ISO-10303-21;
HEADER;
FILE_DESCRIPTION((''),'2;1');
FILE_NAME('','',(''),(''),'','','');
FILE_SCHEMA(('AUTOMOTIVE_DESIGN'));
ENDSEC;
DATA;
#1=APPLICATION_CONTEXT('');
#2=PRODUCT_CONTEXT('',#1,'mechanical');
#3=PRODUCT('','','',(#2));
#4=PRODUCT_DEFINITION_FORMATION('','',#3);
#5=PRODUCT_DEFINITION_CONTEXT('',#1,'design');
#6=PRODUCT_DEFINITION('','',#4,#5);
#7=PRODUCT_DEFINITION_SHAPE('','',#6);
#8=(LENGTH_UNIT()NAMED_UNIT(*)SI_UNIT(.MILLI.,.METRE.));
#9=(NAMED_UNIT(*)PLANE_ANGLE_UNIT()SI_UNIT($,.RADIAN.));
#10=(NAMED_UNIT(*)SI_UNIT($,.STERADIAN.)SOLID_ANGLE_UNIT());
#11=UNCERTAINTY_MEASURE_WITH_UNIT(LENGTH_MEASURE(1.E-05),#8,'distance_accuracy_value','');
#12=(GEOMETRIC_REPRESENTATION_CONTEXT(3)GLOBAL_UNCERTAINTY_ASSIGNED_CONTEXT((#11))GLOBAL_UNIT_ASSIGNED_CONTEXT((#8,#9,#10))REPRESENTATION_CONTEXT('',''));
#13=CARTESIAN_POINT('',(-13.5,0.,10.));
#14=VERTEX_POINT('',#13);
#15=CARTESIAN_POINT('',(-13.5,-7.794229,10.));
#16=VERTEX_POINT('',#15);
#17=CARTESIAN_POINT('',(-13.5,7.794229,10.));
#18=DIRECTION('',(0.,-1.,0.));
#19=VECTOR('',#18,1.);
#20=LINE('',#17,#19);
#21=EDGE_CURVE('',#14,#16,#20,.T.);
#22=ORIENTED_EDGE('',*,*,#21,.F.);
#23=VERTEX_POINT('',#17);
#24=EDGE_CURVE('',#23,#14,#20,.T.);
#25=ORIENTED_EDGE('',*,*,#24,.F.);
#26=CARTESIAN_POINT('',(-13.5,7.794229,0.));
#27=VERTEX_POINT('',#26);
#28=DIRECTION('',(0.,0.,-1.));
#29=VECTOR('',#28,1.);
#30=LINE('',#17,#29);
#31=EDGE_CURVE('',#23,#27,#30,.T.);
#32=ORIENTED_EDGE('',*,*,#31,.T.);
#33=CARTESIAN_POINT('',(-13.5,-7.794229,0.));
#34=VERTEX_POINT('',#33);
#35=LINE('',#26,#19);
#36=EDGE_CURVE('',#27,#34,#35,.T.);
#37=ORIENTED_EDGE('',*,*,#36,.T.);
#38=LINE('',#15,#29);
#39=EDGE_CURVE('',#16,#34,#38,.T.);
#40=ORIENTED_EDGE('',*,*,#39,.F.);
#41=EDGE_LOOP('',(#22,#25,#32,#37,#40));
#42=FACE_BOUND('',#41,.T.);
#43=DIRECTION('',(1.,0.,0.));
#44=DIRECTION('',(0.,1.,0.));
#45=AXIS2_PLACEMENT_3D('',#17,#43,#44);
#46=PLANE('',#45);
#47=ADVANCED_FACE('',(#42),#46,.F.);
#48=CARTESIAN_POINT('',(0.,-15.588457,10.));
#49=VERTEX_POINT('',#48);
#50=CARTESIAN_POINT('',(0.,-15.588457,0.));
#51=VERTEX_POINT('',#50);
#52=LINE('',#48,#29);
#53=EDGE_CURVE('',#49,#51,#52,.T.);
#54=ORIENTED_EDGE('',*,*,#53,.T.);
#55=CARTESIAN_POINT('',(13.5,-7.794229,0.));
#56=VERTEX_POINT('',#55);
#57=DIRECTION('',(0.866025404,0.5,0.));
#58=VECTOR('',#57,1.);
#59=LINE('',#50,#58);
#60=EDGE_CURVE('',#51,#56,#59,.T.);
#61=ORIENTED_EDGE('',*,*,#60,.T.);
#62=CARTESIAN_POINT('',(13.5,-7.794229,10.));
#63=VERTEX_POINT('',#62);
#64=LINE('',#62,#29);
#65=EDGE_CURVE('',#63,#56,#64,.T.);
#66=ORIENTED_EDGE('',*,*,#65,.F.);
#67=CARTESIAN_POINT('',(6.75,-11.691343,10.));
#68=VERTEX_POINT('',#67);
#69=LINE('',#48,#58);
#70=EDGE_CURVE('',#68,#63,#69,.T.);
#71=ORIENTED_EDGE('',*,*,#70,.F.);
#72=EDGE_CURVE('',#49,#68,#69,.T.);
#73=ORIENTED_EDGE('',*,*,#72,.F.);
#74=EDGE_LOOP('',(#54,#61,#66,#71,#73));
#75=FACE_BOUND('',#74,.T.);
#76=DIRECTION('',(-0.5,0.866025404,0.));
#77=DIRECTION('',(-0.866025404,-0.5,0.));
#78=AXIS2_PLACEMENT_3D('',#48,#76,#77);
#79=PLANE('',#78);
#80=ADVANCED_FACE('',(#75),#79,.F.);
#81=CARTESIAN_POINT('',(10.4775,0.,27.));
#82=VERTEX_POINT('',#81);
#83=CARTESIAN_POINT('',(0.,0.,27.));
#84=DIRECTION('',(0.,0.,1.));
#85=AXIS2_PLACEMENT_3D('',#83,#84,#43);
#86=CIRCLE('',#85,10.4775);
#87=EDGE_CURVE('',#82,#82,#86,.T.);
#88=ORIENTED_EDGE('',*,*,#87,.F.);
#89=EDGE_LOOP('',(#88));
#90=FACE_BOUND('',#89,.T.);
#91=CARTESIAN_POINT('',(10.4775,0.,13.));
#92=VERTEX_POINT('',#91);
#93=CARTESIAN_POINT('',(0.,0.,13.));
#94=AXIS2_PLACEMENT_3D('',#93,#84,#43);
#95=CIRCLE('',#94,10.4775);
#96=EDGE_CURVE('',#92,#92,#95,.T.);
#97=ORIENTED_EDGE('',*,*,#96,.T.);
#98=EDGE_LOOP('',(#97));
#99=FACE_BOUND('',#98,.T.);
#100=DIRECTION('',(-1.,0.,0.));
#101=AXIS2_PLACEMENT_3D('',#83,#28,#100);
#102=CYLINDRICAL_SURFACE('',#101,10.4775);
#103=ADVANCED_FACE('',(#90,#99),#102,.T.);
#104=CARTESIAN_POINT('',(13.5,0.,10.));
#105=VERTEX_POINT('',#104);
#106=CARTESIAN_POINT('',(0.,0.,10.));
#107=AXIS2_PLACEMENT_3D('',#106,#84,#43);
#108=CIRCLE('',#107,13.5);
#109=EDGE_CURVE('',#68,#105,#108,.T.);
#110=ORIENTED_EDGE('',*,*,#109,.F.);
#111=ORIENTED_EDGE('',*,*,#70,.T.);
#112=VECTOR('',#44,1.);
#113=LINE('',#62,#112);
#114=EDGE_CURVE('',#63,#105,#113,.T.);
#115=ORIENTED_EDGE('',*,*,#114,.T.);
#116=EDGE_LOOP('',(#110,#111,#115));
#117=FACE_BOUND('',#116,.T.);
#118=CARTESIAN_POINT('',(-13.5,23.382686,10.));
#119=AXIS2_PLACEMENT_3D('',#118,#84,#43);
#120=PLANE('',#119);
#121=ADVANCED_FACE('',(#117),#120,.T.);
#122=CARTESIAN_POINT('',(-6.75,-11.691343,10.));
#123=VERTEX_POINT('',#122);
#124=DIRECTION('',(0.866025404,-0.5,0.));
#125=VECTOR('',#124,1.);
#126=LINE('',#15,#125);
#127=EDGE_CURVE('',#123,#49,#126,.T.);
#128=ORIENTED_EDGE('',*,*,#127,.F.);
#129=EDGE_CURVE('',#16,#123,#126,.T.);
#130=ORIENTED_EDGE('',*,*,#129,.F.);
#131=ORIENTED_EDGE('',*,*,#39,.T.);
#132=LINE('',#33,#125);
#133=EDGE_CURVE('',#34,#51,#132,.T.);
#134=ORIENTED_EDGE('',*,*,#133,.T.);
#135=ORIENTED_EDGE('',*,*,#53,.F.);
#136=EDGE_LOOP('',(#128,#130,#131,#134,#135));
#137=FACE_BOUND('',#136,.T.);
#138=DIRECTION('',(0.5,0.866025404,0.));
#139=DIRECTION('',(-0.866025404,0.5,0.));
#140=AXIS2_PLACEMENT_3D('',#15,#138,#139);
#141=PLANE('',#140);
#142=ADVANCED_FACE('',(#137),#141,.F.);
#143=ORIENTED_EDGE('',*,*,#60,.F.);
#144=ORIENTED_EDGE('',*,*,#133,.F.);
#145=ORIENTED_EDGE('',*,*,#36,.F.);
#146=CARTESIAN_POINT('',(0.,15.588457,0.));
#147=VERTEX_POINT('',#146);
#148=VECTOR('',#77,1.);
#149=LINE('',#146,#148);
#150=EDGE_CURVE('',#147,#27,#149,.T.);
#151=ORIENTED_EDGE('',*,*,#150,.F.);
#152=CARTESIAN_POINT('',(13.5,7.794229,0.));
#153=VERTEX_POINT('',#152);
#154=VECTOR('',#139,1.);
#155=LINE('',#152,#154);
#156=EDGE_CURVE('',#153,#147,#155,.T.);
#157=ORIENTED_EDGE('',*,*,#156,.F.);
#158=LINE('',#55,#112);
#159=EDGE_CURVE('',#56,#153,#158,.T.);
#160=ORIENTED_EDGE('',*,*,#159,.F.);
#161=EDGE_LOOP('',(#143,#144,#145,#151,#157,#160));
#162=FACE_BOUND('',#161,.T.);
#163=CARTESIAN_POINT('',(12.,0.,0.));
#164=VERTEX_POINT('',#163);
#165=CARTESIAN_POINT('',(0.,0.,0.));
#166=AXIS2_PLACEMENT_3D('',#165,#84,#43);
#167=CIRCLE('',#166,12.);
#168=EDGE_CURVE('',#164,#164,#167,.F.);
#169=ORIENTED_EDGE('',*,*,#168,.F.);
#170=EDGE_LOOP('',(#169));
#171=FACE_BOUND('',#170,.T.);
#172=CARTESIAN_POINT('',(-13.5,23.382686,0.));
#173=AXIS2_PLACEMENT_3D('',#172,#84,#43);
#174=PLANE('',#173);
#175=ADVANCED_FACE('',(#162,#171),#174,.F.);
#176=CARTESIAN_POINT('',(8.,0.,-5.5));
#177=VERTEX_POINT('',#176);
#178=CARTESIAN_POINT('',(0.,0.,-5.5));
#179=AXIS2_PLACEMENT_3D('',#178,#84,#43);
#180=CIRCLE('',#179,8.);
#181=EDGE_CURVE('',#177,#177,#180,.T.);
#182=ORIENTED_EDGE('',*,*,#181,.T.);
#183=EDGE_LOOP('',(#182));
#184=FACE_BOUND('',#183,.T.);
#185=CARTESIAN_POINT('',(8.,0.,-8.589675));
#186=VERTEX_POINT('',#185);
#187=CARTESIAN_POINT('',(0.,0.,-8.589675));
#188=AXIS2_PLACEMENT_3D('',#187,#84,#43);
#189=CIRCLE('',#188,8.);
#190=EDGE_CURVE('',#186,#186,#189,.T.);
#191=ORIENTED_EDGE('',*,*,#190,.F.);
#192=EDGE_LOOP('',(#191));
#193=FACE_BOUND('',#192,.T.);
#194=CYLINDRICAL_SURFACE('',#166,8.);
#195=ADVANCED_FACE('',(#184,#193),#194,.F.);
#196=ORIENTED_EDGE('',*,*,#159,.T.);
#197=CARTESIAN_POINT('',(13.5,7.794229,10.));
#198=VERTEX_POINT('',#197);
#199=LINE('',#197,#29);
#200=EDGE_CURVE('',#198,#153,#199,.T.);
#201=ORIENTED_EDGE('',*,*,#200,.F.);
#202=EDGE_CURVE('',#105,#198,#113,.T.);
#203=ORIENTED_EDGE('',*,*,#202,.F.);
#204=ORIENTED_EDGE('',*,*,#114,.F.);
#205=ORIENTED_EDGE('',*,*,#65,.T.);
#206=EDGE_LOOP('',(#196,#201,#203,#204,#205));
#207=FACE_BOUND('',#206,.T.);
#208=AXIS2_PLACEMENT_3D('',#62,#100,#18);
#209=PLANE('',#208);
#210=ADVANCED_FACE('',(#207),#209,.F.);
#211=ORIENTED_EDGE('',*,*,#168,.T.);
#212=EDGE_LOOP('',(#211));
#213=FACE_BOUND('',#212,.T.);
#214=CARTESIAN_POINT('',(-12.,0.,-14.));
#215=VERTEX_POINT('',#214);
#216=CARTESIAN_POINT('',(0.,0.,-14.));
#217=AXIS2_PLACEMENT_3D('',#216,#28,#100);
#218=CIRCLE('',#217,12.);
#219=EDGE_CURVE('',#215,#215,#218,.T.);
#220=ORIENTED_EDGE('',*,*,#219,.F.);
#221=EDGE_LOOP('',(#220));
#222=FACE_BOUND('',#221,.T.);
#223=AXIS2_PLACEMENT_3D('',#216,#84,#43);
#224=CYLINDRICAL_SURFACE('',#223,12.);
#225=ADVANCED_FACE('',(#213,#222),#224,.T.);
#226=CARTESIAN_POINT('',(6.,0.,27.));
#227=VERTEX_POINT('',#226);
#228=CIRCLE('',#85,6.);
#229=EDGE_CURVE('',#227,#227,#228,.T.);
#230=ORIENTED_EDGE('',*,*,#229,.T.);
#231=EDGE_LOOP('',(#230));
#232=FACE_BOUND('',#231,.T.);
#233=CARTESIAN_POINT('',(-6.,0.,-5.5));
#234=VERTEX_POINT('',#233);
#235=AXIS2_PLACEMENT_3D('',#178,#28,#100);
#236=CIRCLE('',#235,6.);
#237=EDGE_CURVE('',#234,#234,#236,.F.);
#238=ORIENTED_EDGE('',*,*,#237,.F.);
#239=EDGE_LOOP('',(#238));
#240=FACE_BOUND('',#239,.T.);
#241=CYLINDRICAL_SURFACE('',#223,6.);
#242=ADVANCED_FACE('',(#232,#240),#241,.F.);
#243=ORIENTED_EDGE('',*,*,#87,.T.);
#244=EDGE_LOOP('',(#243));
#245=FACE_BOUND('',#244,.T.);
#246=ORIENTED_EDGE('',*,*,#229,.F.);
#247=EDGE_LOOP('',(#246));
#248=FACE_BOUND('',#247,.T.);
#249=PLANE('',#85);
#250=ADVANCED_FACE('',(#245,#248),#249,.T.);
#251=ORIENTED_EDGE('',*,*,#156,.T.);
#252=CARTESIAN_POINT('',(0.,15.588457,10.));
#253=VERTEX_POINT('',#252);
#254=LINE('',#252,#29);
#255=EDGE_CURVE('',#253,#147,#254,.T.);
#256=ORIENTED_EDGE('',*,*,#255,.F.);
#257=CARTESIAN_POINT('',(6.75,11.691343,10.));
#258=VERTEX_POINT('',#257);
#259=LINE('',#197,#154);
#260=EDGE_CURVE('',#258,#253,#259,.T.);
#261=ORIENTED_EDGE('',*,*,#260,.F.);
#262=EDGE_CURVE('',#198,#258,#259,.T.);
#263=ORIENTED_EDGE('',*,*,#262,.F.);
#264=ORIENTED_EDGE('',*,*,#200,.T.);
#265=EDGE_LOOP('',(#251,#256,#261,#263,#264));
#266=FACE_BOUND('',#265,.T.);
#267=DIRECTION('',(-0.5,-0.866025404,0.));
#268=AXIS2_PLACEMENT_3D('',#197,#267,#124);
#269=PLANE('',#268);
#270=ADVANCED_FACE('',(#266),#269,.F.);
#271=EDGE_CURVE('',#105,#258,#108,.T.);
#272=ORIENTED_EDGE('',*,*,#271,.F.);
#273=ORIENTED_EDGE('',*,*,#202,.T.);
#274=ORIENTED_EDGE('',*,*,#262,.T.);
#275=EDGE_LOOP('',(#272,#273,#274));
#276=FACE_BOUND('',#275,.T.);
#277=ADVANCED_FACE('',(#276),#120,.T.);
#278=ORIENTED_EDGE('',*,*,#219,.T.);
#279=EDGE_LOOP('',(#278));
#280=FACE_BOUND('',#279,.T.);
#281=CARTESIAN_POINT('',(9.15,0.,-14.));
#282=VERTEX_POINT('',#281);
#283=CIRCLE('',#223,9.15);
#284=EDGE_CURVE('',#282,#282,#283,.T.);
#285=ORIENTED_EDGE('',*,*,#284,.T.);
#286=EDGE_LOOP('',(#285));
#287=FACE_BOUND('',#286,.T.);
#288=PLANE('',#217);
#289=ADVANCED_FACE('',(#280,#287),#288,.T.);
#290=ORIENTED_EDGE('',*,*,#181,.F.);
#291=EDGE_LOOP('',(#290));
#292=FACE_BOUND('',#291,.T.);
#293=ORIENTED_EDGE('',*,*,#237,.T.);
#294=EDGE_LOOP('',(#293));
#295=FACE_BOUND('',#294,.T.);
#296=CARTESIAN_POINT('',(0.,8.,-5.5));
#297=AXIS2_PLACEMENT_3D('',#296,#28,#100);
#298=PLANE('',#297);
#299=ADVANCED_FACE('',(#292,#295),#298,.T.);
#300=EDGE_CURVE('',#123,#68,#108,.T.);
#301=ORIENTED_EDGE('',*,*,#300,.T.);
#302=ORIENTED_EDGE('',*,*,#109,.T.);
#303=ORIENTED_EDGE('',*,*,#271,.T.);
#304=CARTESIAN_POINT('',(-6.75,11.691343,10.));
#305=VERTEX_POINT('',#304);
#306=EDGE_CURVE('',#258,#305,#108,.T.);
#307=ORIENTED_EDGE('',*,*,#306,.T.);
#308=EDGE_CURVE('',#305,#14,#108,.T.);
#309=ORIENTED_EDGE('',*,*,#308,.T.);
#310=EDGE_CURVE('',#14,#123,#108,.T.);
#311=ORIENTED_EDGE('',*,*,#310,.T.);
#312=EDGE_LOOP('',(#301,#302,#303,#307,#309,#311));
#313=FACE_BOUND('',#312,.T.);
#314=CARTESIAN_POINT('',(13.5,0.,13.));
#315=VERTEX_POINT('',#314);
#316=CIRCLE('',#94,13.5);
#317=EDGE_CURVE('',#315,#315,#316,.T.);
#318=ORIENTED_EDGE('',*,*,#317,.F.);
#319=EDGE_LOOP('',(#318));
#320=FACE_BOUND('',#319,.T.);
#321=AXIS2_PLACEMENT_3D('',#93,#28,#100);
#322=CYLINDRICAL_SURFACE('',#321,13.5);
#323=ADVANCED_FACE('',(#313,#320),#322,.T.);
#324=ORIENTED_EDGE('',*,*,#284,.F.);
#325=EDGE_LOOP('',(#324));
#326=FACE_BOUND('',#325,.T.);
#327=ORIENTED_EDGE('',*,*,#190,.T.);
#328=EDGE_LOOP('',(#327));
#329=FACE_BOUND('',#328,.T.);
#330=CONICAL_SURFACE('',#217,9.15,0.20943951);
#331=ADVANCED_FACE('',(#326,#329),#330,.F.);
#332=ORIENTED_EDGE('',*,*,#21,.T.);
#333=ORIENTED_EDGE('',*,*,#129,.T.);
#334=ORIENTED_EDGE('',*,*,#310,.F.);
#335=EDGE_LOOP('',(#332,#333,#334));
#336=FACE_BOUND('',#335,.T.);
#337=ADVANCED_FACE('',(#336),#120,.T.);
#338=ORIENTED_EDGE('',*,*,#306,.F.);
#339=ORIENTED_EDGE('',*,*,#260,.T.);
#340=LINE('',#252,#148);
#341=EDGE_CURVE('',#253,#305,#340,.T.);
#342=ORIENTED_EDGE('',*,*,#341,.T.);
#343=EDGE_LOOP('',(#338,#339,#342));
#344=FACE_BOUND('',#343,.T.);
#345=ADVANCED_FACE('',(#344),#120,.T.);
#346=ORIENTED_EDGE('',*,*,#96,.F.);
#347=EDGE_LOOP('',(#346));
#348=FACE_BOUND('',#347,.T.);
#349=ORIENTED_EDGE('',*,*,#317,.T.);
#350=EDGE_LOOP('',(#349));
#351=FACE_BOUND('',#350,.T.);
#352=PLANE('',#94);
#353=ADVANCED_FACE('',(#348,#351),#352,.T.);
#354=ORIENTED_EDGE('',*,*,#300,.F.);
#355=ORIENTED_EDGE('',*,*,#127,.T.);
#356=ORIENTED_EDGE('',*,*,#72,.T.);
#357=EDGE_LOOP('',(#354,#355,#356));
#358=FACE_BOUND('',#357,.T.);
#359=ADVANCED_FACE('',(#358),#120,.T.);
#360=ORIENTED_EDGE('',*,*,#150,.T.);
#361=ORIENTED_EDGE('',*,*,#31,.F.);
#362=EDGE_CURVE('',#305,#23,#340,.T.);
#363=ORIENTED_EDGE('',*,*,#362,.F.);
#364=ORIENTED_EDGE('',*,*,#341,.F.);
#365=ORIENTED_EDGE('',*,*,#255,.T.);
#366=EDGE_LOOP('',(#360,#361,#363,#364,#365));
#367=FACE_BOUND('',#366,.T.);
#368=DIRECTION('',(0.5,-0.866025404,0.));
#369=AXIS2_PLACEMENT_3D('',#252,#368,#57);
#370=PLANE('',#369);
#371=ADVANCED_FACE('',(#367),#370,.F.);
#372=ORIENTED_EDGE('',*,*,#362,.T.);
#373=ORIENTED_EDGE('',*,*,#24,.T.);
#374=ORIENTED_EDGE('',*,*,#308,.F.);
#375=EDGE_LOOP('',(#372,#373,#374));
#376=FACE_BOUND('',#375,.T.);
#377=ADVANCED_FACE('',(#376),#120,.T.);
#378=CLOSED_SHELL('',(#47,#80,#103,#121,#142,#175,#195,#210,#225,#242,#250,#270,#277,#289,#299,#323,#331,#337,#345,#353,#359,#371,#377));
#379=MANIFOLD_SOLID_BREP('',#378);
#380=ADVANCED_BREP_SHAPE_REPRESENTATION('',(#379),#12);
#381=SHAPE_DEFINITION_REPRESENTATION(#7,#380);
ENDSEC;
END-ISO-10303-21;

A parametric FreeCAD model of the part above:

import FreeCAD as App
import Part
import Sketcher
from FreeCAD import Vector
Q = App.Units.Quantity

doc = App.newDocument("Part")
params = doc.addObject("Spreadsheet::Sheet", "Params")
for row, (alias, value) in enumerate([
    ("pad1_length", "10 mm"),
    ("sketch2_diameter", "27 mm"),
    ("pad2_length", "3 mm"),
    ("pad3_length", "14 mm"),
    ("sketch4_diameter", "24 mm"),
    ("pad4_length", "14 mm"),
    ("sketch5_diameter", "12 mm"),
    ("sketch6_width", "8 mm"),
    ("sketch6_height", "8.5 mm"),
    ("sketch6_width2", "9.15 mm"),
    ("groove_angle", "360 deg"),
], start=1):
    params.set(f"A{row}", alias)
    params.set(f"B{row}", "=" + value)
    params.setAlias(f"B{row}", alias)

body = doc.addObject("PartDesign::Body", "Body")

sketch1 = doc.addObject("Sketcher::SketchObject", "Sketch")
body.addObject(sketch1)
sketch1.AttachmentSupport = (doc.XY_Plane, [""])
sketch1.MapMode = "FlatFace"
sketch1.addGeometry([
    Part.LineSegment(Vector(0, 15.588457, 0), Vector(-13.5, 7.794229, 0)),
    Part.LineSegment(Vector(-13.5, 7.794229, 0), Vector(-13.5, -7.794229, 0)),
    Part.LineSegment(Vector(-13.5, -7.794229, 0), Vector(0, -15.588457, 0)),
    Part.LineSegment(Vector(0, -15.588457, 0), Vector(13.5, -7.794229, 0)),
    Part.LineSegment(Vector(13.5, -7.794229, 0), Vector(13.5, 7.794229, 0)),
    Part.LineSegment(Vector(13.5, 7.794229, 0), Vector(0, 15.588457, 0)),
], False)
sketch1.addConstraint([
    Sketcher.Constraint("Coincident", 0, 2, 1, 1),
    Sketcher.Constraint("Coincident", 1, 2, 2, 1),
    Sketcher.Constraint("Coincident", 2, 2, 3, 1),
    Sketcher.Constraint("Coincident", 3, 2, 4, 1),
    Sketcher.Constraint("Coincident", 4, 2, 5, 1),
    Sketcher.Constraint("Coincident", 5, 2, 0, 1),
    Sketcher.Constraint("Vertical", 1),
    Sketcher.Constraint("Vertical", 4),
    Sketcher.Constraint("Symmetric", 0, 2, 3, 2, -1, 1),
    Sketcher.Constraint("Symmetric", 2, 2, 5, 2, -1, 1),
    Sketcher.Constraint("PointOnObject", 2, 2, -2),
    Sketcher.Constraint("Parallel", 2, 5),
    Sketcher.Constraint("Horizontal", 1, 2, 3, 2),
    Sketcher.Constraint("Angle", 0, Q("-150 deg")),
    Sketcher.Constraint("DistanceX", 1, 2, 3, 2, 27.0),
    Sketcher.Constraint("DistanceY", 1, 2, 1, 1, 15.588457),
])
pad1 = doc.addObject("PartDesign::Pad", "Pad")
body.addObject(pad1)
pad1.Profile = sketch1
pad1.setExpression("Length", "Params.pad1_length")

sketch2 = doc.addObject("Sketcher::SketchObject", "Sketch001")
body.addObject(sketch2)
sketch2.AttachmentSupport = (doc.XY_Plane, [""])
sketch2.MapMode = "FlatFace"
sketch2.AttachmentOffset = App.Placement(Vector(0, 0, 10), App.Rotation())
sketch2.addGeometry(Part.Circle(Vector(0, 0, 0), Vector(0, 0, 1), 13.5), False)
sketch2.addConstraint([
    Sketcher.Constraint("Coincident", 0, 3, -1, 1),
    Sketcher.Constraint("Diameter", 0, 27.0),
])
sketch2.setExpression("Constraints[1]", "Params.sketch2_diameter")
pad2 = doc.addObject("PartDesign::Pad", "Pad001")
body.addObject(pad2)
pad2.Profile = sketch2
pad2.setExpression("Length", "Params.pad2_length")

sketch3 = doc.addObject("Sketcher::SketchObject", "Sketch002")
body.addObject(sketch3)
sketch3.AttachmentSupport = (doc.XY_Plane, [""])
sketch3.MapMode = "FlatFace"
sketch3.AttachmentOffset = App.Placement(Vector(0, 0, 13), App.Rotation())
sketch3.addGeometry(Part.Circle(Vector(0, 0, 0), Vector(0, 0, 1), 10.4775), False)
sketch3.addConstraint([
    Sketcher.Constraint("Coincident", 0, 3, -1, 1),
    Sketcher.Constraint("Diameter", 0, 20.955),
])
pad3 = doc.addObject("PartDesign::Pad", "Pad002")
body.addObject(pad3)
pad3.Profile = sketch3
pad3.setExpression("Length", "Params.pad3_length")

sketch4 = doc.addObject("Sketcher::SketchObject", "Sketch003")
body.addObject(sketch4)
sketch4.AttachmentSupport = (doc.XY_Plane, [""])
sketch4.MapMode = "FlatFace"
sketch4.addGeometry(Part.Circle(Vector(0, 0, 0), Vector(0, 0, 1), 12), False)
sketch4.addConstraint([
    Sketcher.Constraint("Coincident", 0, 3, -1, 1),
    Sketcher.Constraint("Diameter", 0, 24.0),
])
sketch4.setExpression("Constraints[1]", "Params.sketch4_diameter")
pad4 = doc.addObject("PartDesign::Pad", "Pad003")
body.addObject(pad4)
pad4.Profile = sketch4
pad4.setExpression("Length", "Params.pad4_length")
pad4.Reversed = True

sketch5 = doc.addObject("Sketcher::SketchObject", "Sketch004")
body.addObject(sketch5)
sketch5.AttachmentSupport = (doc.XY_Plane, [""])
sketch5.MapMode = "FlatFace"
sketch5.AttachmentOffset = App.Placement(Vector(0, 0, 27), App.Rotation())
sketch5.addGeometry(Part.Circle(Vector(0, 0, 0), Vector(0, 0, 1), 6), False)
sketch5.addConstraint([
    Sketcher.Constraint("Coincident", 0, 3, -1, 1),
    Sketcher.Constraint("Diameter", 0, 12.0),
])
sketch5.setExpression("Constraints[1]", "Params.sketch5_diameter")
pocket1 = doc.addObject("PartDesign::Pocket", "Pocket")
body.addObject(pocket1)
pocket1.Profile = sketch5
pocket1.Type = "ThroughAll"

sketch6 = doc.addObject("Sketcher::SketchObject", "Sketch005")
body.addObject(sketch6)
sketch6.AttachmentSupport = (doc.YZ_Plane, [""])
sketch6.MapMode = "FlatFace"
sketch6.addGeometry([
    Part.LineSegment(Vector(0, -14, 0), Vector(9.15, -14, 0)),
    Part.LineSegment(Vector(9.15, -14, 0), Vector(8, -8.589675, 0)),
    Part.LineSegment(Vector(8, -8.589675, 0), Vector(8, -5.5, 0)),
    Part.LineSegment(Vector(8, -5.5, 0), Vector(0, -5.5, 0)),
    Part.LineSegment(Vector(0, -5.5, 0), Vector(0, -14, 0)),
], False)
sketch6.addConstraint([
    Sketcher.Constraint("Coincident", 0, 2, 1, 1),
    Sketcher.Constraint("Coincident", 1, 2, 2, 1),
    Sketcher.Constraint("Coincident", 2, 2, 3, 1),
    Sketcher.Constraint("Coincident", 3, 2, 4, 1),
    Sketcher.Constraint("Coincident", 4, 2, 0, 1),
    Sketcher.Constraint("Horizontal", 0),
    Sketcher.Constraint("Vertical", 2),
    Sketcher.Constraint("Horizontal", 3),
    Sketcher.Constraint("Vertical", 4),
    Sketcher.Constraint("PointOnObject", 3, 2, -2),
    Sketcher.Constraint("DistanceX", 3, 2, 3, 1, 8.0),
    Sketcher.Constraint("Angle", 1, Q("102 deg")),
    Sketcher.Constraint("DistanceY", 4, 2, 4, 1, 8.5),
    Sketcher.Constraint("DistanceY", 0, 2, -1, 1, 14.0),
    Sketcher.Constraint("DistanceX", 0, 1, 0, 2, 9.15),
])
sketch6.setExpression("Constraints[10]", "Params.sketch6_width")
sketch6.setExpression("Constraints[12]", "Params.sketch6_height")
sketch6.setExpression("Constraints[14]", "Params.sketch6_width2")
groove = doc.addObject("PartDesign::Groove", "Groove")
body.addObject(groove)
groove.Profile = sketch6
groove.ReferenceAxis = (sketch6, ["V_Axis"])
groove.setExpression("Angle", "Params.groove_angle")

doc.recompute()
